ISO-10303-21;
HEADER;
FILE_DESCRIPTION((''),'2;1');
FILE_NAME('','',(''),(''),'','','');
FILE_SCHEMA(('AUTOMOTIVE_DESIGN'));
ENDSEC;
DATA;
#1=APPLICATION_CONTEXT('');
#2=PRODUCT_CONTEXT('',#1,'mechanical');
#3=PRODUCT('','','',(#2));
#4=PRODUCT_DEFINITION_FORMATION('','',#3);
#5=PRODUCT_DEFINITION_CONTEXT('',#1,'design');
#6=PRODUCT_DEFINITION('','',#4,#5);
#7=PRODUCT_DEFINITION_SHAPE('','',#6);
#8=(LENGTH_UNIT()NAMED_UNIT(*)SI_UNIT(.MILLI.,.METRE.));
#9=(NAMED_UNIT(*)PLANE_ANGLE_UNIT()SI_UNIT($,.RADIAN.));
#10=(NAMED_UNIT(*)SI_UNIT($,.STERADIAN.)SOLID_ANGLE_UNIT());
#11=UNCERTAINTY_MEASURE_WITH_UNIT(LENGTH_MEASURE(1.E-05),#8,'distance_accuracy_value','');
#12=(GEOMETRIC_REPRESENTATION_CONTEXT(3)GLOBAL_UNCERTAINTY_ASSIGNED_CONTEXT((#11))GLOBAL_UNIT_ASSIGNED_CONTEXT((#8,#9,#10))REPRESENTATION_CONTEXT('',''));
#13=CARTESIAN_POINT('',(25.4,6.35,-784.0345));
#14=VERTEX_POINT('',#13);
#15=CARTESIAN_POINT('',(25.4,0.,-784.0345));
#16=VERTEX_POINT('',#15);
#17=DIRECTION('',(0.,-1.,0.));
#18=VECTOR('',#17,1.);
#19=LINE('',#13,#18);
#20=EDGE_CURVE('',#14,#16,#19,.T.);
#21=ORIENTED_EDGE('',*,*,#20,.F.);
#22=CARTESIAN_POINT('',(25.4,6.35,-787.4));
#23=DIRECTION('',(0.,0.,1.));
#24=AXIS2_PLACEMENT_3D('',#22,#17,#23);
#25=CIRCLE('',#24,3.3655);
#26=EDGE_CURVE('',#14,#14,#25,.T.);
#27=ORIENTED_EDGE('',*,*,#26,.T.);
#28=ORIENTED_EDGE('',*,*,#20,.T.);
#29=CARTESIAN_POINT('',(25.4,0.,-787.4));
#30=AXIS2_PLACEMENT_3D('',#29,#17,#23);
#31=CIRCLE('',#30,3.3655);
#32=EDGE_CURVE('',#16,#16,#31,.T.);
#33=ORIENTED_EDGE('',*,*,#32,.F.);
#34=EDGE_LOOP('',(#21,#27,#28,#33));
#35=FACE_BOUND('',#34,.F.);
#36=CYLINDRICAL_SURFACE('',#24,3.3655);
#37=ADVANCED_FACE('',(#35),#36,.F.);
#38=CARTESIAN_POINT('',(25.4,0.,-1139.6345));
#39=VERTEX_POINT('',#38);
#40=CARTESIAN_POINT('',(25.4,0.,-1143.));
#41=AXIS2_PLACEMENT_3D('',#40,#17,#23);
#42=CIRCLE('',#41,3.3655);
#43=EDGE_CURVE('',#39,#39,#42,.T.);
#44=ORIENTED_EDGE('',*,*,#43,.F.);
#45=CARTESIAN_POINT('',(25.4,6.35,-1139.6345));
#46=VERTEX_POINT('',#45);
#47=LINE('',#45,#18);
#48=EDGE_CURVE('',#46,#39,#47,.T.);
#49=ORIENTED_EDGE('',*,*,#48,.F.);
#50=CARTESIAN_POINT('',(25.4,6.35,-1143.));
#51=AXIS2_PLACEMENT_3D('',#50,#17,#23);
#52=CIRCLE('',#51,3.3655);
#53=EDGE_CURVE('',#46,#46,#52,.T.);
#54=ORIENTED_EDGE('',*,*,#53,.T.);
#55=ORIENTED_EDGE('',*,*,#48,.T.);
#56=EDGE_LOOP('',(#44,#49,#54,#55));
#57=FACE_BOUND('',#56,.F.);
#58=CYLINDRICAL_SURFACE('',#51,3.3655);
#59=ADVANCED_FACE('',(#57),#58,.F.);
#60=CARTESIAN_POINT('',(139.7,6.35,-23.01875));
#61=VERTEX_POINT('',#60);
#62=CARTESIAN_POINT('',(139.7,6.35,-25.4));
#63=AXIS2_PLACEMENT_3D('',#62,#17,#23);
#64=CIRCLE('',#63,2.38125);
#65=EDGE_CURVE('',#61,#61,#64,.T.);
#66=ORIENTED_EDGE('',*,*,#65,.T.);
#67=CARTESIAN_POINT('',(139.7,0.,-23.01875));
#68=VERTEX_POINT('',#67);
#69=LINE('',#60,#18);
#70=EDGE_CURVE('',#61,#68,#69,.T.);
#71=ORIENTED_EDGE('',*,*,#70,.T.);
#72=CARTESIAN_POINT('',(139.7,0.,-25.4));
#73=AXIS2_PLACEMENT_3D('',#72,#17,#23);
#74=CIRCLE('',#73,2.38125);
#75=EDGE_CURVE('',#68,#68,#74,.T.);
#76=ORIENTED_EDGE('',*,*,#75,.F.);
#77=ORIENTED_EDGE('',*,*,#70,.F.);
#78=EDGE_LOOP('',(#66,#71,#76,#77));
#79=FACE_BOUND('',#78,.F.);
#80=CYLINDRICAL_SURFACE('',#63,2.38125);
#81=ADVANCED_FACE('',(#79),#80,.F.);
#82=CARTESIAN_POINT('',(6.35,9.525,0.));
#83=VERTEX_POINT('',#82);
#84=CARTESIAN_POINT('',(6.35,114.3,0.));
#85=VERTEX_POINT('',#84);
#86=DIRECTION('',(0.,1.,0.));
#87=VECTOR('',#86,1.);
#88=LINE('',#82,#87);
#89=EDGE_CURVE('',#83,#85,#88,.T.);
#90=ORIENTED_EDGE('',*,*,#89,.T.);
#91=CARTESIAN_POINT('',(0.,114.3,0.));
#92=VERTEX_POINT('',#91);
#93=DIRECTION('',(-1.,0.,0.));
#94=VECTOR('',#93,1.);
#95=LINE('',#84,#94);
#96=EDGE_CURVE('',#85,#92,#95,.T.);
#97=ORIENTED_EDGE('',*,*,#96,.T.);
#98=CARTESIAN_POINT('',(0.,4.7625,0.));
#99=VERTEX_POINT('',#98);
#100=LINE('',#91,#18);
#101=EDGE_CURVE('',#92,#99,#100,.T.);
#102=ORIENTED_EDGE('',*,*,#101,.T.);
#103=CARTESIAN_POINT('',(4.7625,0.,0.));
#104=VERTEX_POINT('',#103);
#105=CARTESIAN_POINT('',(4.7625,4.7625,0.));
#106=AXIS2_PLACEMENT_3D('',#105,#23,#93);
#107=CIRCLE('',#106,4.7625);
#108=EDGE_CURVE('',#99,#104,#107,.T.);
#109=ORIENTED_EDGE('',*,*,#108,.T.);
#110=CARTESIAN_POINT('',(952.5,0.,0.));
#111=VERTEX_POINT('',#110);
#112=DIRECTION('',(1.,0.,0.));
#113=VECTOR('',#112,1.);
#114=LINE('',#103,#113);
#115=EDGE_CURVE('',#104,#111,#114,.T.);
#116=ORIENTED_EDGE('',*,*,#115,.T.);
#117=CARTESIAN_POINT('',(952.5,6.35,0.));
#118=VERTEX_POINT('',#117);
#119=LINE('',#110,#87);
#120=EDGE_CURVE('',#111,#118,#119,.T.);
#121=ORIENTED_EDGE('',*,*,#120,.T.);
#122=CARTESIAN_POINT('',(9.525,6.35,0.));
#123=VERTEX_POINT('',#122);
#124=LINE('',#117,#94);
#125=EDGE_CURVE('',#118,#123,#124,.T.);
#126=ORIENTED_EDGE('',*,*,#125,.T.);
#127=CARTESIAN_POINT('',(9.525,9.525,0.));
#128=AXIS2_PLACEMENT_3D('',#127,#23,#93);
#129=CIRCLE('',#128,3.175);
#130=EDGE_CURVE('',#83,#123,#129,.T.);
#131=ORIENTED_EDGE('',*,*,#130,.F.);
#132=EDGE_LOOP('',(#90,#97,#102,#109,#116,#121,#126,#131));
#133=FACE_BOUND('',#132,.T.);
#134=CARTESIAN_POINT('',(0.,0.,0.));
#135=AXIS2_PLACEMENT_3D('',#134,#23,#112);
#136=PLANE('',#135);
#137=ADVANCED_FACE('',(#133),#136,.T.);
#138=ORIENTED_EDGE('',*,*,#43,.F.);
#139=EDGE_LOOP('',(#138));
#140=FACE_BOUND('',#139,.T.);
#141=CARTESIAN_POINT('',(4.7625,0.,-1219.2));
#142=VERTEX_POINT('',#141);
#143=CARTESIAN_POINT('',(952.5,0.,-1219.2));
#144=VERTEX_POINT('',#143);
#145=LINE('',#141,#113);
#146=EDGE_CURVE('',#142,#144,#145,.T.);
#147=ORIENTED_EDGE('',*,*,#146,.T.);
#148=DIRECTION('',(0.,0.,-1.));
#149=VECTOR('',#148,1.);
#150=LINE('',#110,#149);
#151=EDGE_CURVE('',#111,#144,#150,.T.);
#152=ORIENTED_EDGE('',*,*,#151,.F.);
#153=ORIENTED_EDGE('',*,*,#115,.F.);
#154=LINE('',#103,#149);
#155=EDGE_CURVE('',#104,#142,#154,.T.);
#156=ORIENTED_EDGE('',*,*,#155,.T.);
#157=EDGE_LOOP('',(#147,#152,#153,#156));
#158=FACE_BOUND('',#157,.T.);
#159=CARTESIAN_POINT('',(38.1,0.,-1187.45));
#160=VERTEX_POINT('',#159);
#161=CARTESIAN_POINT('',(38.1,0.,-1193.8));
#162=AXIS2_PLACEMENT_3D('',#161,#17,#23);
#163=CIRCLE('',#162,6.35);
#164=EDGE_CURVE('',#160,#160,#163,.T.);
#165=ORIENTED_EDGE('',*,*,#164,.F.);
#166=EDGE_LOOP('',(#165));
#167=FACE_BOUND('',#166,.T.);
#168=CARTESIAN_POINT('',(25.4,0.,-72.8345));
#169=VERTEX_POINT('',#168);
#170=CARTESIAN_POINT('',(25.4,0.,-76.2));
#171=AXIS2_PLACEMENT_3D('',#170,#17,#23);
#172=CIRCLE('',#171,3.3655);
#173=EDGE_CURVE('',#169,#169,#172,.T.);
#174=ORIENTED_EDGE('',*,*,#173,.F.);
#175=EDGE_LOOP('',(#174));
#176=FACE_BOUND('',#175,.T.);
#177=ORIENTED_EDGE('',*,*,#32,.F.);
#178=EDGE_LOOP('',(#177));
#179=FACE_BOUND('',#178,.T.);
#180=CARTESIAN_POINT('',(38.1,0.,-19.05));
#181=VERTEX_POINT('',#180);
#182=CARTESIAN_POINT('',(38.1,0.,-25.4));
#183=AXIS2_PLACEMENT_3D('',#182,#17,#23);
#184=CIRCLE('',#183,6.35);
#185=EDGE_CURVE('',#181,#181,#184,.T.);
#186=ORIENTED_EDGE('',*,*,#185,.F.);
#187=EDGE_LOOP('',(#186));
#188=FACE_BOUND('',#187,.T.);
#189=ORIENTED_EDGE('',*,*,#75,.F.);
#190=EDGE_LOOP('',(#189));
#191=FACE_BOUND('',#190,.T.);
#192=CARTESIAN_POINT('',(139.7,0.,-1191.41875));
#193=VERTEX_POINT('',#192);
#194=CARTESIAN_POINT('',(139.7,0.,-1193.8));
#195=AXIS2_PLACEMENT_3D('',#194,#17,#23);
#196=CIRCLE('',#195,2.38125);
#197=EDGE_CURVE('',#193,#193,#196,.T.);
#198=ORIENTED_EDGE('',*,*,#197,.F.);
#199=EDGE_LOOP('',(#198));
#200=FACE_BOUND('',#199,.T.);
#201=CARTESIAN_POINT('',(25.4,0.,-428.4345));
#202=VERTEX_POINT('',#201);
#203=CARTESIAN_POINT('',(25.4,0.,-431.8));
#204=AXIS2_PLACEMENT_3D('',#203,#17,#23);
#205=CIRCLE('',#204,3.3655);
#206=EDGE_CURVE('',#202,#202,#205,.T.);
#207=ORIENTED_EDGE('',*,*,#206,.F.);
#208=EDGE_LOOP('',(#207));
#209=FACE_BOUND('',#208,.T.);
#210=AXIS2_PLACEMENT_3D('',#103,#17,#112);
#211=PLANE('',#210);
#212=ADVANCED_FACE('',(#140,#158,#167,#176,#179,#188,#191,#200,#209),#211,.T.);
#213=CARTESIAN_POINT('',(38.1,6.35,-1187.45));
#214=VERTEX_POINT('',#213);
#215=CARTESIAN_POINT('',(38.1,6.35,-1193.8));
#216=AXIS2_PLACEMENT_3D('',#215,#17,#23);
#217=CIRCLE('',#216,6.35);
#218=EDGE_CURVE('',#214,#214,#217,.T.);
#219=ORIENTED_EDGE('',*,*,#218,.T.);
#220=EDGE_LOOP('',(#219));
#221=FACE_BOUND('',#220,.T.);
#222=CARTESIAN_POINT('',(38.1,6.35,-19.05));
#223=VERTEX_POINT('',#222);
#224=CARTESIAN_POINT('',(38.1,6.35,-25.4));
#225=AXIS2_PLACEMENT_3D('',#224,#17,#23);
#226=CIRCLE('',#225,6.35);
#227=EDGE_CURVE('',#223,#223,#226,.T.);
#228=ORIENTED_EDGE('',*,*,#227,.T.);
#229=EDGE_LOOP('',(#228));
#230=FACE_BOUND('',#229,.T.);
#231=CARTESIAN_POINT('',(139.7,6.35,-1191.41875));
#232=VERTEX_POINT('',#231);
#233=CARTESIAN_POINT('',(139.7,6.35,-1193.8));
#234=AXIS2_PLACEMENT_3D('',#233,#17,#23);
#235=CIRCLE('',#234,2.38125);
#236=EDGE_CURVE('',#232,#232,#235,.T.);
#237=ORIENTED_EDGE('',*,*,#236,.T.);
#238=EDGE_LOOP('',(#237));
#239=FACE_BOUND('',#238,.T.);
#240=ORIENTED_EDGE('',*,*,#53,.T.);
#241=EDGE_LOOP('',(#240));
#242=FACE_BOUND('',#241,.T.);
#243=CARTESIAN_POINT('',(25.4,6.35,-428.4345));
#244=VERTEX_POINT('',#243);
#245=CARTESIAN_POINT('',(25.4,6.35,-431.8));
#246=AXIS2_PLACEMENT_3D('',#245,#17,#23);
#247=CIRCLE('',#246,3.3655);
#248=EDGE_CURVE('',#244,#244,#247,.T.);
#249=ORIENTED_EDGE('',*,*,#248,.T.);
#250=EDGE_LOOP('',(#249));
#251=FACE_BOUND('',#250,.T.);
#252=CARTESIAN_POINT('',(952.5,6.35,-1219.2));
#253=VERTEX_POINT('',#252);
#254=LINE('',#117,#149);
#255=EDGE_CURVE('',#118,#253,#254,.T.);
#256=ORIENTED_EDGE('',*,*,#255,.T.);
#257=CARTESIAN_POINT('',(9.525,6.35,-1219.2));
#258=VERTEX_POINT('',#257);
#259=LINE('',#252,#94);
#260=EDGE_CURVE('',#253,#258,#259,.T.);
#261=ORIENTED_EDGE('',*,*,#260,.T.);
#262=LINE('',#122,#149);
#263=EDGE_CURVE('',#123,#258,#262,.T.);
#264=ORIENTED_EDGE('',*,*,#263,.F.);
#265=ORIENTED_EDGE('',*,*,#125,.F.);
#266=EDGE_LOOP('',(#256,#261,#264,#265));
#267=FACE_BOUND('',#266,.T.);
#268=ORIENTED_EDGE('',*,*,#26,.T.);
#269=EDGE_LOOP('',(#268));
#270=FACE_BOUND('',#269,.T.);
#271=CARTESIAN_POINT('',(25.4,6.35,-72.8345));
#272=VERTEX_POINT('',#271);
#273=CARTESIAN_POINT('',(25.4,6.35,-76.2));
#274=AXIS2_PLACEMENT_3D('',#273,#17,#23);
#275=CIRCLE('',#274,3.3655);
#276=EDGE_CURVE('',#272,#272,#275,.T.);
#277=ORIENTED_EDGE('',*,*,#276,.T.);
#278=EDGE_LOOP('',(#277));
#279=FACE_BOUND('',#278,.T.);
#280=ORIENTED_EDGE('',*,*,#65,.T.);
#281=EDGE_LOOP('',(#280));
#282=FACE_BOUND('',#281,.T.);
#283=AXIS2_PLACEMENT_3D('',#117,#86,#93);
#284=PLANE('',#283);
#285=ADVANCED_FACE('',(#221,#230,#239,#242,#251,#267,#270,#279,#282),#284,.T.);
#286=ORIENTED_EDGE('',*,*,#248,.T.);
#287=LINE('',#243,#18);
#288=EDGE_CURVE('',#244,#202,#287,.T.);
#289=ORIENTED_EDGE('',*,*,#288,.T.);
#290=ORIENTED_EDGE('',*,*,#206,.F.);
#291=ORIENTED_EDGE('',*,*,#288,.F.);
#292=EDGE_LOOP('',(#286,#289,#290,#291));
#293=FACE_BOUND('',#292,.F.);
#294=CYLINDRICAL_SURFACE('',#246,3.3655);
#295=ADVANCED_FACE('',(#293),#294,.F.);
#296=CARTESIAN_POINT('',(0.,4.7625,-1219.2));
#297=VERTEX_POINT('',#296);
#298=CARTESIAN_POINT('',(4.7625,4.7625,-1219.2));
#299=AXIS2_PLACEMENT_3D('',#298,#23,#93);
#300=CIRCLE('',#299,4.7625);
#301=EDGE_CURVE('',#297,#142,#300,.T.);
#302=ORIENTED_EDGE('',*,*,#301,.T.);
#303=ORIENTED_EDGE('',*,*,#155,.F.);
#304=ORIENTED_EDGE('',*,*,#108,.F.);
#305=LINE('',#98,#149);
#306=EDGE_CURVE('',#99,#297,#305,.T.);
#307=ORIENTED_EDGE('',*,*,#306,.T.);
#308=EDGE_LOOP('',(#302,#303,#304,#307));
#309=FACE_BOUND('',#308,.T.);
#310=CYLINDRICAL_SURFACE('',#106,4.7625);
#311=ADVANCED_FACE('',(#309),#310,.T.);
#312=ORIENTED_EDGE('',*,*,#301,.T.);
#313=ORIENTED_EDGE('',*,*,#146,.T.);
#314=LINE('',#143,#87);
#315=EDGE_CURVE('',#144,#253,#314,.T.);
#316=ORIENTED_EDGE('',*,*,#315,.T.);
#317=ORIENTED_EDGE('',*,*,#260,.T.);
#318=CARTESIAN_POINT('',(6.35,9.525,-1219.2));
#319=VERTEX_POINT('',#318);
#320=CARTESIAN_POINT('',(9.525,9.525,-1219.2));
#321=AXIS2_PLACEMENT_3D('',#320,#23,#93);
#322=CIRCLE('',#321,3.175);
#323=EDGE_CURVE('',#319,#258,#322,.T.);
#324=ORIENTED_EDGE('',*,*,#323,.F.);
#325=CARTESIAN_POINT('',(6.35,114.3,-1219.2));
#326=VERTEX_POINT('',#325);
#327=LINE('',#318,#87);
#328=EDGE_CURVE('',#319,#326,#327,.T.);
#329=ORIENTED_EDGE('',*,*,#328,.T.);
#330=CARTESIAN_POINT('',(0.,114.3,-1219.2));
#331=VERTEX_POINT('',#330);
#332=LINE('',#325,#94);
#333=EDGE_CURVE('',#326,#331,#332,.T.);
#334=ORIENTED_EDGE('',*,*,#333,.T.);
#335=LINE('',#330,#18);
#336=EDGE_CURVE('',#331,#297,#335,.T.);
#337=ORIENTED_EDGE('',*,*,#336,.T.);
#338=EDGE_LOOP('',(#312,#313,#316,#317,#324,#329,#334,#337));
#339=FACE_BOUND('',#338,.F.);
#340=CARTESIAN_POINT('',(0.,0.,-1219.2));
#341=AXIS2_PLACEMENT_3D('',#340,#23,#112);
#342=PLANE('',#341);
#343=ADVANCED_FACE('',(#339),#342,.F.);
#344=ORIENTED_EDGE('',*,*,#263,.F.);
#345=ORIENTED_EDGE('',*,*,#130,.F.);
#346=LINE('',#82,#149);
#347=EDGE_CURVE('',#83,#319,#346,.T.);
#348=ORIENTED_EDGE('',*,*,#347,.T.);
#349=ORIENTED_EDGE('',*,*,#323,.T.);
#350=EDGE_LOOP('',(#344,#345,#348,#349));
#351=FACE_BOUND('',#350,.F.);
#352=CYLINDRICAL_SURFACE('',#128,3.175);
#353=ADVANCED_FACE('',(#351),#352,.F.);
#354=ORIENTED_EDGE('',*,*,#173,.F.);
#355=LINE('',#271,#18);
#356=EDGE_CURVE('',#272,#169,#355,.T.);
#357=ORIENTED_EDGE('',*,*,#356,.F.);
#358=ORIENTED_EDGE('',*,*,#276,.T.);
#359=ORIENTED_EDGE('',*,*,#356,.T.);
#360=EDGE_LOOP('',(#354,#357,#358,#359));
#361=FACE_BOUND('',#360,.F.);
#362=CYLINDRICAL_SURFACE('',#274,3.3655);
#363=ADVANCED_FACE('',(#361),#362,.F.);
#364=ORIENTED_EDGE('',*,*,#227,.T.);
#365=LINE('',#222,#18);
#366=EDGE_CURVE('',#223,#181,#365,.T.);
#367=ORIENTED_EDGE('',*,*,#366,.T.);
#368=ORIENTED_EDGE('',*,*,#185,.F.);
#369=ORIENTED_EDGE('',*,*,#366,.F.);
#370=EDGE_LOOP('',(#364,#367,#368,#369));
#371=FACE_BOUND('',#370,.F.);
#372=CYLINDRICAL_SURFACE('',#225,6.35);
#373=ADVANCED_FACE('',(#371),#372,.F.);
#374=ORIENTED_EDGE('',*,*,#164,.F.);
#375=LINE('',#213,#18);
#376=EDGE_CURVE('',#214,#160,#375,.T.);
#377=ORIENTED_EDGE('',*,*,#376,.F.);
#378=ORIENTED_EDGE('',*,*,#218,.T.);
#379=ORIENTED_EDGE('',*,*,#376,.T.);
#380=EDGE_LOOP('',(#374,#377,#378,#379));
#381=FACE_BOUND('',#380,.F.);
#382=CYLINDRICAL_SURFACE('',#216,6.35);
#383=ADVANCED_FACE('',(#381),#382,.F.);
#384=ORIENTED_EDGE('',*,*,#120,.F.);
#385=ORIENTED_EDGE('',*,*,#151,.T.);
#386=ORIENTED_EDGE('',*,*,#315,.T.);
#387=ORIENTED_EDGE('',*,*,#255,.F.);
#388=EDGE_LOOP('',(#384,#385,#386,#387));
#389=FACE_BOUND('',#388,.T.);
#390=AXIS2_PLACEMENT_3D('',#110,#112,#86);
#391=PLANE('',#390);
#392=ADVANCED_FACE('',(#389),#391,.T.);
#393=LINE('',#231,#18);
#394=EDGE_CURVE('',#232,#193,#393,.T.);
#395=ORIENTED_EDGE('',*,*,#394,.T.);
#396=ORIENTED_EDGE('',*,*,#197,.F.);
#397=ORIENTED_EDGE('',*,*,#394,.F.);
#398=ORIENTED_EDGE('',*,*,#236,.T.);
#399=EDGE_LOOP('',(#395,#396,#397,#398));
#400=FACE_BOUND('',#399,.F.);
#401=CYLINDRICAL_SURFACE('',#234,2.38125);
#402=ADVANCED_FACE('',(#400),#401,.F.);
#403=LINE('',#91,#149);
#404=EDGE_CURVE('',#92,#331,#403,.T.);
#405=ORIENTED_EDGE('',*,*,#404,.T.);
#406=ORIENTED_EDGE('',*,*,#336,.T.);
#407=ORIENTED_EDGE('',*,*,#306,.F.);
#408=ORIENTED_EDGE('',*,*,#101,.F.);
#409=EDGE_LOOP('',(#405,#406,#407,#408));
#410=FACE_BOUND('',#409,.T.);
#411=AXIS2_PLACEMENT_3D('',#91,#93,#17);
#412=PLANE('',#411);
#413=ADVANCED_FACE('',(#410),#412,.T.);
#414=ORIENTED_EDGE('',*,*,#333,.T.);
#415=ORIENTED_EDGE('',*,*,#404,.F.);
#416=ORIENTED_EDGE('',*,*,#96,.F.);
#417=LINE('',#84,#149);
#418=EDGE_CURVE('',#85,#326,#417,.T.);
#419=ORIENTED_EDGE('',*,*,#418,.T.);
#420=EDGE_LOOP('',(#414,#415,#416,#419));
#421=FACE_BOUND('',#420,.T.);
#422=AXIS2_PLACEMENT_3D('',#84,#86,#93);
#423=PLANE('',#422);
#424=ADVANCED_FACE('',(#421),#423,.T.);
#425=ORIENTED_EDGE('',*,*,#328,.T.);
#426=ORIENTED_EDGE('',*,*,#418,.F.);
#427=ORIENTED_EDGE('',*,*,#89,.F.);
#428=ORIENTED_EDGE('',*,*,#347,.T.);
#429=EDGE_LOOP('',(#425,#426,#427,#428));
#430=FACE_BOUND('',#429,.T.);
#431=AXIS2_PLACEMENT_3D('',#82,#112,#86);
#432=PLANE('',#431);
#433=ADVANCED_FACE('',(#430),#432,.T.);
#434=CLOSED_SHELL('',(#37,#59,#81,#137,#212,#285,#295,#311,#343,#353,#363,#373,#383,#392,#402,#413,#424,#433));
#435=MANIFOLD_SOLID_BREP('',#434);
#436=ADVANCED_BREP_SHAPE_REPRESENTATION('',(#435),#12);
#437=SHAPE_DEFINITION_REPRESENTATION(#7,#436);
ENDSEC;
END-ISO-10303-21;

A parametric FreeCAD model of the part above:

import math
import FreeCAD as App
import Part
import Sketcher
Q = App.Units.Quantity

doc = App.newDocument("Part")
body = doc.addObject("PartDesign::Body", "Body")

sketch1 = body.newObject("Sketcher::SketchObject", "Sketch")
sketch1.AttachmentSupport = (doc.getObject("XY_Plane"), [""])
sketch1.MapMode = "FlatFace"
sketch1.addGeometry(Part.LineSegment(App.Vector(6.35, 114.3, 0), App.Vector(0, 114.3, 0)), False)
sketch1.addGeometry(Part.LineSegment(App.Vector(0, 114.3, 0), App.Vector(0, 4.7625, 0)), False)
sketch1.addGeometry(Part.ArcOfCircle(Part.Circle(App.Vector(4.7625, 4.7625, 0), App.Vector(0, 0, 1), 4.7625), math.radians(180), math.radians(270)), False)
sketch1.addGeometry(Part.LineSegment(App.Vector(4.7625, 0, 0), App.Vector(952.5, 0, 0)), False)
sketch1.addGeometry(Part.LineSegment(App.Vector(952.5, 0, 0), App.Vector(952.5, 6.35, 0)), False)
sketch1.addGeometry(Part.LineSegment(App.Vector(952.5, 6.35, 0), App.Vector(9.525, 6.35, 0)), False)
sketch1.addGeometry(Part.ArcOfCircle(Part.Circle(App.Vector(9.525, 9.525, 0), App.Vector(0, 0, 1), 3.175), math.radians(180), math.radians(270)), False)
sketch1.addGeometry(Part.LineSegment(App.Vector(6.35, 9.525, 0), App.Vector(6.35, 114.3, 0)), False)
sketch1.addConstraint(Sketcher.Constraint("Coincident", 0, 2, 1, 1))
sketch1.addConstraint(Sketcher.Constraint("Tangent", 1, 2, 2, 1))
sketch1.addConstraint(Sketcher.Constraint("Tangent", 2, 2, 3, 1))
sketch1.addConstraint(Sketcher.Constraint("Coincident", 3, 2, 4, 1))
sketch1.addConstraint(Sketcher.Constraint("Coincident", 4, 2, 5, 1))
sketch1.addConstraint(Sketcher.Constraint("Tangent", 5, 2, 6, 2))
sketch1.addConstraint(Sketcher.Constraint("Tangent", 6, 1, 7, 1))
sketch1.addConstraint(Sketcher.Constraint("Coincident", 7, 2, 0, 1))
sketch1.addConstraint(Sketcher.Constraint("Horizontal", 0))
sketch1.addConstraint(Sketcher.Constraint("Vertical", 1))
sketch1.addConstraint(Sketcher.Constraint("Horizontal", 3))
sketch1.addConstraint(Sketcher.Constraint("Vertical", 4))
sketch1.addConstraint(Sketcher.Constraint("Horizontal", 5))
sketch1.addConstraint(Sketcher.Constraint("Vertical", 7))
sketch1.addConstraint(Sketcher.Constraint("PointOnObject", 0, 2, -2))
sketch1.addConstraint(Sketcher.Constraint("PointOnObject", 2, 2, -1))
sketch1.addConstraint(Sketcher.Constraint("Equal", 0, 4))
sketch1.addConstraint(Sketcher.Constraint("Radius", 2, Q("0.1875 in")))
sketch1.addConstraint(Sketcher.Constraint("Radius", 6, Q("0.125 in")))
sketch1.addConstraint(Sketcher.Constraint("DistanceX", 0, 2, 0, 1, Q("0.25 in")))
sketch1.addConstraint(Sketcher.Constraint("DistanceY", -1, 1, 0, 2, Q("4.5 in")))
sketch1.addConstraint(Sketcher.Constraint("DistanceX", -1, 1, 3, 2, Q("37.5 in")))
pad1 = body.newObject("PartDesign::Pad", "Pad")
pad1.Profile = sketch1
pad1.Length = Q("48 in")
pad1.Reversed = True

sketch2 = body.newObject("Sketcher::SketchObject", "Sketch001")
sketch2.AttachmentSupport = (doc.getObject("XZ_Plane"), [""])
sketch2.MapMode = "FlatFace"
sketch2.AttachmentOffset = App.Placement(App.Vector(0, 0, -0.25 * 25.4), App.Rotation())
sketch2.addGeometry(Part.Circle(App.Vector(25.4, -76.2, 0), App.Vector(0, 0, 1), 3.3655), False)
sketch2.addConstraint(Sketcher.Constraint("Diameter", 0, Q("0.265 in")))
sketch2.addConstraint(Sketcher.Constraint("DistanceX", -1, 1, 0, 3, Q("1 in")))
sketch2.addConstraint(Sketcher.Constraint("DistanceY", 0, 3, -1, 1, Q("3 in")))
doc.recompute()
hole = body.newObject("PartDesign::Hole", "Hole")
hole.Profile = sketch2
hole.ThreadType = "None"
hole.Diameter = Q("0.265 in")
hole.DepthType = "ThroughAll"
hole.Reversed = True
doc.recompute()

linearpattern = body.newObject("PartDesign::LinearPattern", "LinearPattern")
linearpattern.Originals = [hole]
linearpattern.Direction = (doc.getObject("Z_Axis"), [""])
linearpattern.Mode = "offset"
linearpattern.Offset = Q("14 in")
linearpattern.Occurrences = 4
linearpattern.Reversed = True
body.Tip = linearpattern

sketch3 = body.newObject("Sketcher::SketchObject", "Sketch002")
sketch3.AttachmentSupport = (doc.getObject("XZ_Plane"), [""])
sketch3.MapMode = "FlatFace"
sketch3.AttachmentOffset = App.Placement(App.Vector(0, 0, -0.25 * 25.4), App.Rotation())
sketch3.addGeometry(Part.Circle(App.Vector(38.1, -25.4, 0), App.Vector(0, 0, 1), 6.35), False)
sketch3.addConstraint(Sketcher.Constraint("Diameter", 0, Q("0.5 in")))
sketch3.addConstraint(Sketcher.Constraint("DistanceY", 0, 3, -1, 1, Q("1 in")))
sketch3.addConstraint(Sketcher.Constraint("DistanceX", -1, 1, 0, 3, Q("1.5 in")))
doc.recompute()
hole2 = body.newObject("PartDesign::Hole", "Hole001")
hole2.Profile = sketch3
hole2.ThreadType = "None"
hole2.Diameter = Q("0.5 in")
hole2.DepthType = "Dimension"
hole2.Depth = Q("1 in")
hole2.DrillPoint = "Angled"
hole2.DrillPointAngle = 118
hole2.Reversed = True
doc.recompute()

linearpattern2 = body.newObject("PartDesign::LinearPattern", "LinearPattern001")
linearpattern2.Originals = [hole2]
linearpattern2.Direction = (doc.getObject("Z_Axis"), [""])
linearpattern2.Mode = "offset"
linearpattern2.Offset = Q("46 in")
linearpattern2.Occurrences = 2
linearpattern2.Reversed = True
body.Tip = linearpattern2

sketch4 = body.newObject("Sketcher::SketchObject", "Sketch003")
sketch4.AttachmentSupport = (doc.getObject("XZ_Plane"), [""])
sketch4.MapMode = "FlatFace"
sketch4.AttachmentOffset = App.Placement(App.Vector(0, 0, -0.25 * 25.4), App.Rotation())
sketch4.addGeometry(Part.Circle(App.Vector(139.7, -25.4, 0), App.Vector(0, 0, 1), 2.38125), False)
sketch4.addConstraint(Sketcher.Constraint("Diameter", 0, Q("0.1875 in")))
sketch4.addConstraint(Sketcher.Constraint("DistanceY", 0, 3, -1, 1, Q("1 in")))
sketch4.addConstraint(Sketcher.Constraint("DistanceX", -1, 1, 0, 3, Q("5.5 in")))
doc.recompute()
hole3 = body.newObject("PartDesign::Hole", "Hole002")
hole3.Profile = sketch4
hole3.ThreadType = "None"
hole3.Diameter = Q("0.1875 in")
hole3.DepthType = "Dimension"
hole3.Depth = Q("1 in")
hole3.DrillPoint = "Angled"
hole3.DrillPointAngle = 118
hole3.Reversed = True
doc.recompute()

linearpattern3 = body.newObject("PartDesign::LinearPattern", "LinearPattern002")
linearpattern3.Originals = [hole3]
linearpattern3.Direction = (doc.getObject("Z_Axis"), [""])
linearpattern3.Mode = "offset"
linearpattern3.Offset = Q("46 in")
linearpattern3.Occurrences = 2
linearpattern3.Reversed = True
body.Tip = linearpattern3

doc.recompute()
